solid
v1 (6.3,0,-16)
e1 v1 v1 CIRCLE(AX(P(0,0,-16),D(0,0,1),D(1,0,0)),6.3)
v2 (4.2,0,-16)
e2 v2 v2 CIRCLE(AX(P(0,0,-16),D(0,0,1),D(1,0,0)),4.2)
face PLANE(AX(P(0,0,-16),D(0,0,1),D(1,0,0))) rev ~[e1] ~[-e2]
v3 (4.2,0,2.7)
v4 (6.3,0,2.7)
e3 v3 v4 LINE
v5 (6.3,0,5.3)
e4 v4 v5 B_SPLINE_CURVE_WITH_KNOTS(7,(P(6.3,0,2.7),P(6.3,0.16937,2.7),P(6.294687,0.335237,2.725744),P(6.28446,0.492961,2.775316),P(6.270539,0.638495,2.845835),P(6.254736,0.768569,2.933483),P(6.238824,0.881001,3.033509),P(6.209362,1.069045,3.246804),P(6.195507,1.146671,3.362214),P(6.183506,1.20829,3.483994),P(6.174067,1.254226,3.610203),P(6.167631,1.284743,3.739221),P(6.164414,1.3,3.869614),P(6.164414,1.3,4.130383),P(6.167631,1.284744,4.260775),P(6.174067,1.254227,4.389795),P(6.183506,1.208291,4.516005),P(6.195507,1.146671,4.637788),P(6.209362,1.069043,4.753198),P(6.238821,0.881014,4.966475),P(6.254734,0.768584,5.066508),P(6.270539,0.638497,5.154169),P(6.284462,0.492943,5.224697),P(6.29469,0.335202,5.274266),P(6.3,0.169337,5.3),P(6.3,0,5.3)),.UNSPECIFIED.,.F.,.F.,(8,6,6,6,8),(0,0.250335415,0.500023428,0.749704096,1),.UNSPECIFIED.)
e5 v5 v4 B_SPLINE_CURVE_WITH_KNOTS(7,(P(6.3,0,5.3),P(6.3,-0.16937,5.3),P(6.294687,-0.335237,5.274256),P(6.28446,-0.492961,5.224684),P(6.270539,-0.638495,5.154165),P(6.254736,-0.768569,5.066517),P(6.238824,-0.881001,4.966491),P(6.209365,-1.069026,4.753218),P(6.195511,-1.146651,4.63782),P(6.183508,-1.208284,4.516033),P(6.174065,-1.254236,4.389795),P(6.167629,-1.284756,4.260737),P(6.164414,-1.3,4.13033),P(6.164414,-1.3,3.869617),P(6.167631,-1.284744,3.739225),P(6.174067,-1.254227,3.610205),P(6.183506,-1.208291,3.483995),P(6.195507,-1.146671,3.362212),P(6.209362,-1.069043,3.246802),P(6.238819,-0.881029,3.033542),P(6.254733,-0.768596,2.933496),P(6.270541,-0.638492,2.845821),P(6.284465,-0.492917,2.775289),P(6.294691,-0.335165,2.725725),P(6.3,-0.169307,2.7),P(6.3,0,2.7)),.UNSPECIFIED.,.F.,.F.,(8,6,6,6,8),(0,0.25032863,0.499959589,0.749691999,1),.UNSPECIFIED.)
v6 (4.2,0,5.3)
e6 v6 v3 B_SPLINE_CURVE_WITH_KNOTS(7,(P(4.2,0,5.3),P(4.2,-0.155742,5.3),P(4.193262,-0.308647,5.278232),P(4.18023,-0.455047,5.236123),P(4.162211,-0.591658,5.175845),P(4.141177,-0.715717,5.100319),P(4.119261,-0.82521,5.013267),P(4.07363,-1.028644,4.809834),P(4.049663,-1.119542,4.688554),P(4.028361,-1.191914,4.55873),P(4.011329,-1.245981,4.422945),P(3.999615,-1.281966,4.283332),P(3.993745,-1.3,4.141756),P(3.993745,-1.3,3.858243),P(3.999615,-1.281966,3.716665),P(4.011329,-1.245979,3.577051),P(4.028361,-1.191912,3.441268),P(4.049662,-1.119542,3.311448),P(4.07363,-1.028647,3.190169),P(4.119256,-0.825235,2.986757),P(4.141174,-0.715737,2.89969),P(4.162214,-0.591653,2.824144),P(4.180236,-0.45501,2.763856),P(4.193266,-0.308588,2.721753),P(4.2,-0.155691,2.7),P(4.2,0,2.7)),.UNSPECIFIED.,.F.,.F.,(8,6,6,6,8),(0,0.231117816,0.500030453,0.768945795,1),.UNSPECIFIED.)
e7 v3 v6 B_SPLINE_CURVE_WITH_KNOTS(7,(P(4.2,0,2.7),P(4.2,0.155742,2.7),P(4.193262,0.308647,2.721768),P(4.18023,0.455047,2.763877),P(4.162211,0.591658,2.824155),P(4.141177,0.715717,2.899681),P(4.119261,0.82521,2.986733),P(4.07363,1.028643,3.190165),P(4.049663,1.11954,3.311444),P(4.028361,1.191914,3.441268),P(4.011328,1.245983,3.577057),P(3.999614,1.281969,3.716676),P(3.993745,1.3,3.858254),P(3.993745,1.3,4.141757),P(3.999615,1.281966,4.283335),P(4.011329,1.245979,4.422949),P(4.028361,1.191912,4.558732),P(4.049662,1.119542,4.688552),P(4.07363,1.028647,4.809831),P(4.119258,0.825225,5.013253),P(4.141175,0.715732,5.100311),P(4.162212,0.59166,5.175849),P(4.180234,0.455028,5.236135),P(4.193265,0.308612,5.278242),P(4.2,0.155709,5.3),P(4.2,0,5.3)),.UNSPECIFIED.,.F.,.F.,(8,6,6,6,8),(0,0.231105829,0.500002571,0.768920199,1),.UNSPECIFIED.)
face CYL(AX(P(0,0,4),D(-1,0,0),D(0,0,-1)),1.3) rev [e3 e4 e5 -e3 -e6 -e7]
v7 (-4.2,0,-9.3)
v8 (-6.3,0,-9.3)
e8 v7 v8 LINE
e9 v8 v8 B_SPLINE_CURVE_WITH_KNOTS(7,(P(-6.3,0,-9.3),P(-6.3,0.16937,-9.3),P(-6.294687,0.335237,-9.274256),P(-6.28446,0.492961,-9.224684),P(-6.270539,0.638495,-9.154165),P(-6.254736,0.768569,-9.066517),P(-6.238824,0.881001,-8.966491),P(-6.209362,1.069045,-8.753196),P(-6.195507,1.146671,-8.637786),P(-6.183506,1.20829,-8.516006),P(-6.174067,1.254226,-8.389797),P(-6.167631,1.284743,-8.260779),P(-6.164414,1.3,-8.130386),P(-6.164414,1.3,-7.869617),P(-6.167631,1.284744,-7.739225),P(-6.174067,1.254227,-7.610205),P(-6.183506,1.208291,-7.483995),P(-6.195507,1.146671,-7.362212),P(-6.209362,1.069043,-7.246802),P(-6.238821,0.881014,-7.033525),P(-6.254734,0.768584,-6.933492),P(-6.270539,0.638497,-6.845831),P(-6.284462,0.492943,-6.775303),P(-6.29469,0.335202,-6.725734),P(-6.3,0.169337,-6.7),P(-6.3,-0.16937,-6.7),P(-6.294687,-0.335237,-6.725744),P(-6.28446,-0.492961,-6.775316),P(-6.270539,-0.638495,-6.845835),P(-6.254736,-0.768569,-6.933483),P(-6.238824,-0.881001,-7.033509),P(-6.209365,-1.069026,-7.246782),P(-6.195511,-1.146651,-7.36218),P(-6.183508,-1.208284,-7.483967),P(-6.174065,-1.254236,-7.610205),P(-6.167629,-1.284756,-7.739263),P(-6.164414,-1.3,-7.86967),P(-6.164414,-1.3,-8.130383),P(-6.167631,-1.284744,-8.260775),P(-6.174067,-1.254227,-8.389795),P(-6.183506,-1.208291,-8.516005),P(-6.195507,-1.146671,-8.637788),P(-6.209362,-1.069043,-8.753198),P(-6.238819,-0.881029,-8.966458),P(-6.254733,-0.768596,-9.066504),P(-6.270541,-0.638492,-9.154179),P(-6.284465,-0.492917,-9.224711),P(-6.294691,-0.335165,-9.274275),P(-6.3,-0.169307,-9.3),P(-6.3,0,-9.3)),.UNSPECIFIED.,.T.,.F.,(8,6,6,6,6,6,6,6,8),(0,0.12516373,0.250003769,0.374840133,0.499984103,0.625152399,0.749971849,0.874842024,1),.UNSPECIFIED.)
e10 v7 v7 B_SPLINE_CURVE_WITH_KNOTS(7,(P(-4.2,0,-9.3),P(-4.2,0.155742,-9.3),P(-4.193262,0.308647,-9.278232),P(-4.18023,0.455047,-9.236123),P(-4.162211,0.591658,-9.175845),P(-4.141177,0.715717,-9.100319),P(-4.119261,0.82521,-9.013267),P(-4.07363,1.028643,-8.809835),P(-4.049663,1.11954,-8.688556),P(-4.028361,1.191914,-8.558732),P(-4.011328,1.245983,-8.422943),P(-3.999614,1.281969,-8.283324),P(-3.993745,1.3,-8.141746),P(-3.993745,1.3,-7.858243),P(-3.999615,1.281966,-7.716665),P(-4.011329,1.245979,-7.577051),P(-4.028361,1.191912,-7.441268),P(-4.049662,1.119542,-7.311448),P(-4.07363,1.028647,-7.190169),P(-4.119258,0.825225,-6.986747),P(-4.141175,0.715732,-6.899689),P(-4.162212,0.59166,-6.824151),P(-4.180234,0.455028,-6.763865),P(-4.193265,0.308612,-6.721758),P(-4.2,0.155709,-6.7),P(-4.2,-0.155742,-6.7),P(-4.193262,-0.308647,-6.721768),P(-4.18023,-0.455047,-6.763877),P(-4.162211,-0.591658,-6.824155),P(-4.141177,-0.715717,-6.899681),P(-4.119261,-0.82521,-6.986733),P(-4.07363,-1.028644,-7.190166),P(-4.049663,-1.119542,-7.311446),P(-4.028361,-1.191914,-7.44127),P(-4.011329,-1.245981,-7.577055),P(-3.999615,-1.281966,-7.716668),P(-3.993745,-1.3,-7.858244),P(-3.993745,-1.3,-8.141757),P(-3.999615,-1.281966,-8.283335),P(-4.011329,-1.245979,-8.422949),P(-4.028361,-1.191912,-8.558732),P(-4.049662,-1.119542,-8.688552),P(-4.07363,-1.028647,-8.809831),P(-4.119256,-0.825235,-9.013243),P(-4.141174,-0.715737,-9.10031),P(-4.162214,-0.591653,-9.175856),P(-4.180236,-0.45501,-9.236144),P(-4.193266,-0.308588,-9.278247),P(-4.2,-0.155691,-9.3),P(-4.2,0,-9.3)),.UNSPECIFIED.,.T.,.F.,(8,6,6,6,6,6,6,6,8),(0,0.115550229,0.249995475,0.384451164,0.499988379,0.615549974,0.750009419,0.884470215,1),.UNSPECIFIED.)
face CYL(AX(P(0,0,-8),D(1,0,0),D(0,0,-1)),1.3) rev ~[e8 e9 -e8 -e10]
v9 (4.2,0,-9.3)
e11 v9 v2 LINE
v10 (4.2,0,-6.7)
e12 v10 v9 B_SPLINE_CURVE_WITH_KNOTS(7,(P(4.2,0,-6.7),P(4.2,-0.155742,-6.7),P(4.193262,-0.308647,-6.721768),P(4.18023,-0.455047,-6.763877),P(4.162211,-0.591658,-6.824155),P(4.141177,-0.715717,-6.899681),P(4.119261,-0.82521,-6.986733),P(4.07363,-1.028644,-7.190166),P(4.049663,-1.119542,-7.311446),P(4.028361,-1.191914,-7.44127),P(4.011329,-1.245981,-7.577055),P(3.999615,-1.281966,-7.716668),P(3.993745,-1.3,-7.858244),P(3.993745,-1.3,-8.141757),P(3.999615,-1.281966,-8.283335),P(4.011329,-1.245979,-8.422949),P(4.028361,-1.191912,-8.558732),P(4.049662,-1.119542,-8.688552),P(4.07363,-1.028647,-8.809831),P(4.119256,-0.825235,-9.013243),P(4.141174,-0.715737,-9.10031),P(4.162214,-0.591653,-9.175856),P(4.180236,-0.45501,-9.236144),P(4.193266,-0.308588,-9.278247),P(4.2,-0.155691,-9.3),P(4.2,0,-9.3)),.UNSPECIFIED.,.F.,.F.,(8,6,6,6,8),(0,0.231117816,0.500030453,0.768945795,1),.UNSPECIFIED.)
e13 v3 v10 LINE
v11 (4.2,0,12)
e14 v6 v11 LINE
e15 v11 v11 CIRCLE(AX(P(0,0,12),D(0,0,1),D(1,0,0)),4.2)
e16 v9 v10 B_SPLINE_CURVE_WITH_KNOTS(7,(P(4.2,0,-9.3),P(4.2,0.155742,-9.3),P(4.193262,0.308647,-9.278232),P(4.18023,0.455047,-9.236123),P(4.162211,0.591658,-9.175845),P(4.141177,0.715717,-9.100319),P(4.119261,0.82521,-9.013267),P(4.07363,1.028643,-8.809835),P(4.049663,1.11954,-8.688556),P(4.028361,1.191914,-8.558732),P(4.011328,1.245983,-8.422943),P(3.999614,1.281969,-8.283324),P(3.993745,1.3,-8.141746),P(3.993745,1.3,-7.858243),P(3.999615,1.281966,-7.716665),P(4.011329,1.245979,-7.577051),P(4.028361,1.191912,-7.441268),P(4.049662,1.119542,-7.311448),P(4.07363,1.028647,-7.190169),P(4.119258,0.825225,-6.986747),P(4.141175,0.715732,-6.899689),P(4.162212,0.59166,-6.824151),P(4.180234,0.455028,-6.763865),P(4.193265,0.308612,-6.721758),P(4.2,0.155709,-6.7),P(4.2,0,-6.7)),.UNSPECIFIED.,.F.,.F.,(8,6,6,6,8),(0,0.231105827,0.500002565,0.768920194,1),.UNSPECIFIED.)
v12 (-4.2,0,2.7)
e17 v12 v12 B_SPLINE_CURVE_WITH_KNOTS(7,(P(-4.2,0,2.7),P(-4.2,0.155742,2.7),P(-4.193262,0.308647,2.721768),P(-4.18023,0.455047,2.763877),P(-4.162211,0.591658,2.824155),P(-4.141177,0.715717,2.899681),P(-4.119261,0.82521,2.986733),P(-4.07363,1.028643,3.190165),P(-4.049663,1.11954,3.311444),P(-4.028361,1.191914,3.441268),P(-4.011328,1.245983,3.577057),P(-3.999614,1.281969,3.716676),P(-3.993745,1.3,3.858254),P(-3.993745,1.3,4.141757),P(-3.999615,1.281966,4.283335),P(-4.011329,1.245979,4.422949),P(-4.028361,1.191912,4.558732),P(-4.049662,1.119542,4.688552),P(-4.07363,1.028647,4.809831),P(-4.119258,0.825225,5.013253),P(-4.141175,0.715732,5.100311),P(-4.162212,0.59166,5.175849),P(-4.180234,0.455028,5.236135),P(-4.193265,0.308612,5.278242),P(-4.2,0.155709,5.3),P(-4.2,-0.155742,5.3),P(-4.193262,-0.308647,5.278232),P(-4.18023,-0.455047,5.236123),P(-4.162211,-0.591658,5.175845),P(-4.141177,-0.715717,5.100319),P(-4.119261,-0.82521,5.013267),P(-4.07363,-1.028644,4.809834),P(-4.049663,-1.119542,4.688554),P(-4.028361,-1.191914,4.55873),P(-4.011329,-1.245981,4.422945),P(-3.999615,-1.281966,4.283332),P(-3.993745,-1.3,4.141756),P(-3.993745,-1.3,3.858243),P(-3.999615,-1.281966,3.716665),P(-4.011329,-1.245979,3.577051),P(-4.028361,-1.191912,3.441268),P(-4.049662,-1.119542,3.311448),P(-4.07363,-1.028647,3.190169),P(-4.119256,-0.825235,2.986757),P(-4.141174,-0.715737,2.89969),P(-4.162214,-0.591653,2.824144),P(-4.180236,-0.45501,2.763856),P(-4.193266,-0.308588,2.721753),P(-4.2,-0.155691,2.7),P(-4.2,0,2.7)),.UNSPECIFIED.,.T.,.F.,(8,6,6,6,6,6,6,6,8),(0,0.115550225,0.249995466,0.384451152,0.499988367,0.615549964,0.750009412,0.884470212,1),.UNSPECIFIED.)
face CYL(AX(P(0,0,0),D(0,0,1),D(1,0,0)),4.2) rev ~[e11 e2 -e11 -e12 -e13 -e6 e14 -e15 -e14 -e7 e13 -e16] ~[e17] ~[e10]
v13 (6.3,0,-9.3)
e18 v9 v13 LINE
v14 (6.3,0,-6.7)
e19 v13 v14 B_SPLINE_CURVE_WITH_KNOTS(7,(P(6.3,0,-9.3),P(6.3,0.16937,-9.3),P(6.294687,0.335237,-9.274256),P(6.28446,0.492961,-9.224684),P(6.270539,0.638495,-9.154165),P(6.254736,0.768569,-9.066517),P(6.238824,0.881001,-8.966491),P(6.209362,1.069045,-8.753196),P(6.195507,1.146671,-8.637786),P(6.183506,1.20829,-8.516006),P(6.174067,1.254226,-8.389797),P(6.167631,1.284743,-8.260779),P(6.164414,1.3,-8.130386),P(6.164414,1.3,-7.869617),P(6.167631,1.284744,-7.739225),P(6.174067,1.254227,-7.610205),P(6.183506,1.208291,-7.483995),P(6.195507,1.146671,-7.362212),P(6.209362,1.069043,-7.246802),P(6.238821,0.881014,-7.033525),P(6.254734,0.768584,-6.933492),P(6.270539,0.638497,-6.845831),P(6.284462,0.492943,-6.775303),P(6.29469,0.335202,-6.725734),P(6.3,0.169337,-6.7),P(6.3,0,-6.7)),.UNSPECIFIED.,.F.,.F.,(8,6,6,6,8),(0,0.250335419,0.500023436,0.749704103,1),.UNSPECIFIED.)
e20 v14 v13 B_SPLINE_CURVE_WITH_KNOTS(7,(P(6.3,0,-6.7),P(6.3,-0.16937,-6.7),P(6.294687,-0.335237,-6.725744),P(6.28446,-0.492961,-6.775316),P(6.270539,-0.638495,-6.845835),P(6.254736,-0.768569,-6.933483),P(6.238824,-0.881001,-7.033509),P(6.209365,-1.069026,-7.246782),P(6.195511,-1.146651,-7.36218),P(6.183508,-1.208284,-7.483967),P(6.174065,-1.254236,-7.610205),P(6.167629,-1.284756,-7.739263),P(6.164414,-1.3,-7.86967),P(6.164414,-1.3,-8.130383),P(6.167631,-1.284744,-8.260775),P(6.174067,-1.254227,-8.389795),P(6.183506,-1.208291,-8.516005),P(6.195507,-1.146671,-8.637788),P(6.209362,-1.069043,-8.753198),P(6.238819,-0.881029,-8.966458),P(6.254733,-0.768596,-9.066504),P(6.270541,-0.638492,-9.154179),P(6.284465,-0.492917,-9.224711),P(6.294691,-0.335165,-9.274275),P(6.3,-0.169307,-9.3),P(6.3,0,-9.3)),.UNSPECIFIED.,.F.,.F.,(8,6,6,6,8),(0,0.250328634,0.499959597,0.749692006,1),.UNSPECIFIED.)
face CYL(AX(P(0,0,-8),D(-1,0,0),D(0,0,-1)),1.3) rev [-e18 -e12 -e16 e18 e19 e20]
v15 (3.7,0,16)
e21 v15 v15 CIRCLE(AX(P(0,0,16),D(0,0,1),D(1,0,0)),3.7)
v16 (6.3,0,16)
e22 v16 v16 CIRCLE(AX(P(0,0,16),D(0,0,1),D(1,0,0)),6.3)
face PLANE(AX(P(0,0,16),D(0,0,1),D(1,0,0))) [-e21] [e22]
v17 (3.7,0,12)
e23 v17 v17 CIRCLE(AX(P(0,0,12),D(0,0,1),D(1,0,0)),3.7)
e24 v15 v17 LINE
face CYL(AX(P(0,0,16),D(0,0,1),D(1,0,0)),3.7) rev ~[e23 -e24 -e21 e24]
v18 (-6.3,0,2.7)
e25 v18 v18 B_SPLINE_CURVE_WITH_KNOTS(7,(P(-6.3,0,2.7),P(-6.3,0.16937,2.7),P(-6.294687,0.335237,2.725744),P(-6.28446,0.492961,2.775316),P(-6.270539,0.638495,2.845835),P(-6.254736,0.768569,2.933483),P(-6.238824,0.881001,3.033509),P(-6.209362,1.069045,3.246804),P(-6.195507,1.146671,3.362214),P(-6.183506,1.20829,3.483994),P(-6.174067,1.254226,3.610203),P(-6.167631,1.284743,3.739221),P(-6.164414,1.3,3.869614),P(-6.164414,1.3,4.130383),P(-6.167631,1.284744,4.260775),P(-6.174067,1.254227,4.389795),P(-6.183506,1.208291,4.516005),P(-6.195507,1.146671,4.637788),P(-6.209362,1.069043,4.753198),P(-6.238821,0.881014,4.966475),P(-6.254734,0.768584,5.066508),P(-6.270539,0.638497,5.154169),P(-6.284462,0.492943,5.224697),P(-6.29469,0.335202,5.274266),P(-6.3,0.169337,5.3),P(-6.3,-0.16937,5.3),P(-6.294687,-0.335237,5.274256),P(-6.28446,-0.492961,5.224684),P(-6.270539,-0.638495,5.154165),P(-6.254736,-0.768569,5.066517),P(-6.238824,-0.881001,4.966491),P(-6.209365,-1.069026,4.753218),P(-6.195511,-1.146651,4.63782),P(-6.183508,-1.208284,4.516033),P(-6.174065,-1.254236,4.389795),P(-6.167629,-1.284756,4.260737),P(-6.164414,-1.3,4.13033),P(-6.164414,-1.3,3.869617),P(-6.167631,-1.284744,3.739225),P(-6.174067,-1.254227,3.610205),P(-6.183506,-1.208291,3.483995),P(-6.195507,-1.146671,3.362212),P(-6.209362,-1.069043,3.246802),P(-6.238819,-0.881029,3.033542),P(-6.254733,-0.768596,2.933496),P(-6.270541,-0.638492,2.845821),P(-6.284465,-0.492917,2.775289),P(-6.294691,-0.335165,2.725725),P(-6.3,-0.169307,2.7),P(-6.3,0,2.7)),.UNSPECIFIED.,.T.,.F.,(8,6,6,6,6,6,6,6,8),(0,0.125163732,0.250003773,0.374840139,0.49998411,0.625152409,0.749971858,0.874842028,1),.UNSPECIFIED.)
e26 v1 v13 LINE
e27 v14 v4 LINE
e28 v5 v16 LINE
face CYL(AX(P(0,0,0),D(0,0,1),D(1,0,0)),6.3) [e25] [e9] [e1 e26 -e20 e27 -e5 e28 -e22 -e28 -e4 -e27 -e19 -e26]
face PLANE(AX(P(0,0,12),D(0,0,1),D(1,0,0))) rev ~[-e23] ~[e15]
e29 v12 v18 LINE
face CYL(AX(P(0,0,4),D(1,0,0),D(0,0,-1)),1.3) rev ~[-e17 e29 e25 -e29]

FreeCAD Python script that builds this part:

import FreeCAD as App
import Part
import Sketcher

doc = App.newDocument("Part")
params = doc.addObject("Spreadsheet::Sheet", "Params")
for row, (alias, value) in enumerate([
    ("sketch1_diameter", "12.6 mm"),
    ("sketch1_diameter2", "8.4 mm"),
    ("pad1_length", "16 mm"),
    ("pad1_length2", "16 mm"),
    ("sketch2_diameter", "2.6 mm"),
    ("sketch3_diameter", "8.4 mm"),
    ("sketch3_diameter2", "7.4 mm"),
    ("pad2_length", "4 mm"),
], start=1):
    params.set(f"A{row}", alias)
    params.set(f"B{row}", "=" + value)
    params.setAlias(f"B{row}", alias)

body = doc.addObject("PartDesign::Body", "Body")

sketch1 = body.newObject("Sketcher::SketchObject", "Sketch")
sketch1.AttachmentSupport = (doc.getObject("XY_Plane"), [""])
sketch1.MapMode = "FlatFace"
sketch1.addGeometry([
    Part.Circle(App.Vector(0, 0, 0), App.Vector(0, 0, 1), 6.3),
    Part.Circle(App.Vector(0, 0, 0), App.Vector(0, 0, 1), 4.2),
], False)
sketch1.addConstraint([
    Sketcher.Constraint("Coincident", 0, 3, -1, 1),
    Sketcher.Constraint("Coincident", 1, 3, -1, 1),
    Sketcher.Constraint("Diameter", 0, 12.6),
    Sketcher.Constraint("Diameter", 1, 8.4),
])
sketch1.setExpression("Constraints[2]", "Params.sketch1_diameter")
sketch1.setExpression("Constraints[3]", "Params.sketch1_diameter2")
pad1 = body.newObject("PartDesign::Pad", "Pad")
pad1.Profile = sketch1
pad1.Type = "TwoLengths"
pad1.setExpression("Length", "Params.pad1_length")
pad1.setExpression("Length2", "Params.pad1_length2")

sketch2 = body.newObject("Sketcher::SketchObject", "Sketch001")
sketch2.AttachmentSupport = (doc.getObject("YZ_Plane"), [""])
sketch2.MapMode = "FlatFace"
sketch2.addGeometry([
    Part.Circle(App.Vector(0, 4, 0), App.Vector(0, 0, 1), 1.3),
    Part.Circle(App.Vector(0, -8, 0), App.Vector(0, 0, 1), 1.3),
], False)
sketch2.addConstraint([
    Sketcher.Constraint("Equal", 0, 1),
    Sketcher.Constraint("PointOnObject", 0, 3, -2),
    Sketcher.Constraint("PointOnObject", 1, 3, -2),
    Sketcher.Constraint("Diameter", 0, 2.6),
    Sketcher.Constraint("DistanceY", -1, 1, 0, 3, 4.0),
    Sketcher.Constraint("DistanceY", 1, 3, -1, 1, 8.0),
])
sketch2.setExpression("Constraints[3]", "Params.sketch2_diameter")
pocket1 = body.newObject("PartDesign::Pocket", "Pocket")
pocket1.Profile = sketch2
pocket1.Type = "ThroughAll"
pocket1.Midplane = True

sketch3 = body.newObject("Sketcher::SketchObject", "Sketch002")
sketch3.AttachmentSupport = (doc.getObject("XY_Plane"), [""])
sketch3.MapMode = "FlatFace"
sketch3.AttachmentOffset = App.Placement(App.Vector(0, 0, 16), App.Rotation())
sketch3.addGeometry([
    Part.Circle(App.Vector(0, 0, 0), App.Vector(0, 0, 1), 4.2),
    Part.Circle(App.Vector(0, 0, 0), App.Vector(0, 0, 1), 3.7),
], False)
sketch3.addConstraint([
    Sketcher.Constraint("Coincident", 0, 3, -1, 1),
    Sketcher.Constraint("Coincident", 1, 3, -1, 1),
    Sketcher.Constraint("Diameter", 0, 8.4),
    Sketcher.Constraint("Diameter", 1, 7.4),
])
sketch3.setExpression("Constraints[2]", "Params.sketch3_diameter")
sketch3.setExpression("Constraints[3]", "Params.sketch3_diameter2")
pad2 = body.newObject("PartDesign::Pad", "Pad001")
pad2.Profile = sketch3
pad2.setExpression("Length", "Params.pad2_length")
pad2.Reversed = True

doc.recompute()
